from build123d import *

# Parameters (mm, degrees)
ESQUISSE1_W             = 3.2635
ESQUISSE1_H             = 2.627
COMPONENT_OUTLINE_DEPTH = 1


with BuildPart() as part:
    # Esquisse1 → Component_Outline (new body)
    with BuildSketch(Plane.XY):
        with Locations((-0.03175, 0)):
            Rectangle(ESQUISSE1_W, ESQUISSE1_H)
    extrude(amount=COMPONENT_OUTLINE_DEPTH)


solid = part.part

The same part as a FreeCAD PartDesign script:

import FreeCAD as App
import Part
import Sketcher
Q = App.Units.Quantity

doc = App.newDocument("Part")
body = doc.addObject("PartDesign::Body", "Body")

sketch1 = body.newObject("Sketcher::SketchObject", "Sketch")
sketch1.AttachmentSupport = (doc.getObject("XY_Plane"), [""])
sketch1.MapMode = "FlatFace"
sketch1.addGeometry([
    Part.LineSegment(App.Vector(-1.7, 1.3, 0), App.Vector(-1.7, -1.3, 0)),
    Part.LineSegment(App.Vector(-1.7, -1.3, 0), App.Vector(1.6, -1.3, 0)),
    Part.LineSegment(App.Vector(1.6, -1.3, 0), App.Vector(1.6, 1.3, 0)),
    Part.LineSegment(App.Vector(1.6, 1.3, 0), App.Vector(-1.7, 1.3, 0)),
], False)
sketch1.addConstraint([
    Sketcher.Constraint("Coincident", 0, 2, 1, 1),
    Sketcher.Constraint("Coincident", 1, 2, 2, 1),
    Sketcher.Constraint("Coincident", 2, 2, 3, 1),
    Sketcher.Constraint("Coincident", 3, 2, 0, 1),
    Sketcher.Constraint("Vertical", 0),
    Sketcher.Constraint("Horizontal", 1),
    Sketcher.Constraint("Vertical", 2),
    Sketcher.Constraint("Horizontal", 3),
    Sketcher.Constraint("DistanceX", -1, 1, 1, 2, Q("1.6 mm")),
    Sketcher.Constraint("DistanceY", 0, 2, 0, 1, Q("2.627 mm")),
    Sketcher.Constraint("DistanceX", 1, 1, 1, 2, Q("3.2635 mm")),
    Sketcher.Constraint("DistanceY", 0, 2, -1, 1, Q("1.3135 mm")),
])
pad1 = body.newObject("PartDesign::Pad", "Pad")
pad1.Profile = sketch1
pad1.Length = 1

doc.recompute()
